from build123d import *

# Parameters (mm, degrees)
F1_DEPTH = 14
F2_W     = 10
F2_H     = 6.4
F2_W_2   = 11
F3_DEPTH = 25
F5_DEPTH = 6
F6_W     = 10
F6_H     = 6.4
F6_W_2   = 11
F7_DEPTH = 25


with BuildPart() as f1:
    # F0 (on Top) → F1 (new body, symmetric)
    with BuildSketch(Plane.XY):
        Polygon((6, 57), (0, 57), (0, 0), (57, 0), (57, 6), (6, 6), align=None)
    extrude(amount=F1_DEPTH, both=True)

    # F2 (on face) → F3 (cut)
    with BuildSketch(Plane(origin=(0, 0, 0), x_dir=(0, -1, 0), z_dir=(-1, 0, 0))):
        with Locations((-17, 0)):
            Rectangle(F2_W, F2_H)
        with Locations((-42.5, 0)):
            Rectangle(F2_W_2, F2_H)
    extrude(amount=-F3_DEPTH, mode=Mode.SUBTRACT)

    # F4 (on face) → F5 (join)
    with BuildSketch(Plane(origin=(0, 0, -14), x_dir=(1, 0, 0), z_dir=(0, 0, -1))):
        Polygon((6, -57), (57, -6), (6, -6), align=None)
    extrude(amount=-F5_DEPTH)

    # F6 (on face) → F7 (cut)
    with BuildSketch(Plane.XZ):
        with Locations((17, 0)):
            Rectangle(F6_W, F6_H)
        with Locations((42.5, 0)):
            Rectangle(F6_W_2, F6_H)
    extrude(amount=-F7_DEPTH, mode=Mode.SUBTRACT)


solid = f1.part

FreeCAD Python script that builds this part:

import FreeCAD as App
import Part
import Sketcher
Q = App.Units.Quantity


def add_polygon(sketch, points):
    """Adds a closed chain of lines whose ends are joined by coincident constraints."""
    first, n = sketch.GeometryCount, len(points)
    for a, b in zip(points, points[1:] + points[:1]):
        sketch.addGeometry(Part.LineSegment(App.Vector(*a, 0), App.Vector(*b, 0)), False)
    for i in range(n):
        sketch.addConstraint(Sketcher.Constraint("Coincident", first + i, 2, first + (i + 1) % n, 1))

doc = App.newDocument("Part")
body = doc.addObject("PartDesign::Body", "Body")

# Sketch on XY plane
sketch1 = doc.addObject("Sketcher::SketchObject", "Sketch")
body.addObject(sketch1)
sketch1.AttachmentSupport = (doc.XY_Plane, [""])
sketch1.MapMode = "FlatFace"
add_polygon(sketch1, [(6, 57), (0, 57), (0, 0), (57, 0), (57, 6), (6, 6)])  # lines 0-5
sketch1.addConstraint(Sketcher.Constraint("Horizontal", 0))
sketch1.addConstraint(Sketcher.Constraint("Vertical", 1))
sketch1.addConstraint(Sketcher.Constraint("Horizontal", 2))
sketch1.addConstraint(Sketcher.Constraint("Vertical", 3))
sketch1.addConstraint(Sketcher.Constraint("Horizontal", 4))
sketch1.addConstraint(Sketcher.Constraint("Vertical", 5))
sketch1.addConstraint(Sketcher.Constraint("Coincident", 1, 2, -1, 1))
sketch1.addConstraint(Sketcher.Constraint("Equal", 2, 1))
sketch1.addConstraint(Sketcher.Constraint("Equal", 0, 3))
sketch1.addConstraint(Sketcher.Constraint("DistanceX", 0, 2, 0, 1, Q("6 mm")))
sketch1.addConstraint(Sketcher.Constraint("DistanceX", 2, 1, 2, 2, Q("57 mm")))
pad1 = doc.addObject("PartDesign::Pad", "Pad")
body.addObject(pad1)
pad1.Profile = sketch1
pad1.Length = 28
pad1.Midplane = True

# Sketch on YZ plane
sketch2 = doc.addObject("Sketcher::SketchObject", "Sketch001")
body.addObject(sketch2)
sketch2.AttachmentSupport = (doc.YZ_Plane, [""])
sketch2.MapMode = "FlatFace"
add_polygon(sketch2, [(22, 3), (22, -3), (12, -3), (12, 3)])  # lines 0-3
add_polygon(sketch2, [(48, 3), (48, -3), (37, -3), (37, 3)])  # lines 4-7
sketch2.addConstraint(Sketcher.Constraint("Vertical", 0))
sketch2.addConstraint(Sketcher.Constraint("Horizontal", 1))
sketch2.addConstraint(Sketcher.Constraint("Vertical", 2))
sketch2.addConstraint(Sketcher.Constraint("Horizontal", 3))
sketch2.addConstraint(Sketcher.Constraint("Vertical", 4))
sketch2.addConstraint(Sketcher.Constraint("Horizontal", 5))
sketch2.addConstraint(Sketcher.Constraint("Vertical", 6))
sketch2.addConstraint(Sketcher.Constraint("Horizontal", 7))
sketch2.addConstraint(Sketcher.Constraint("Horizontal", 1, 2, 4, 2))
sketch2.addConstraint(Sketcher.Constraint("Horizontal", 3, 2, 6, 2))
sketch2.addConstraint(Sketcher.Constraint("DistanceX", 1, 2, 1, 1, Q("10 mm")))
sketch2.addConstraint(Sketcher.Constraint("DistanceX", 5, 2, 5, 1, Q("11 mm")))
sketch2.addConstraint(Sketcher.Constraint("DistanceY", 0, 2, 0, 1, Q("6.4 mm")))
sketch2.addConstraint(Sketcher.Constraint("DistanceX", -1, 1, 0, 2, Q("22 mm")))
sketch2.addConstraint(Sketcher.Constraint("DistanceX", -1, 1, 4, 2, Q("48 mm")))
sketch2.addConstraint(Sketcher.Constraint("DistanceY", 0, 2, -1, 1, Q("3.2 mm")))
pocket1 = doc.addObject("PartDesign::Pocket", "Pocket")
body.addObject(pocket1)
pocket1.Profile = sketch2
pocket1.Length = 25
pocket1.Reversed = True

# Sketch on XY plane
sketch3 = doc.addObject("Sketcher::SketchObject", "Sketch002")
body.addObject(sketch3)
sketch3.AttachmentSupport = (doc.XY_Plane, [""])
sketch3.MapMode = "FlatFace"
sketch3.AttachmentOffset = App.Placement(App.Vector(0, 0, -14), App.Rotation())
add_polygon(sketch3, [(6, 57), (57, 6), (6, 6)])  # lines 0-2
sketch3.addConstraint(Sketcher.Constraint("Horizontal", 1))
sketch3.addConstraint(Sketcher.Constraint("Vertical", 2))
sketch3.addConstraint(Sketcher.Constraint("Equal", 1, 2))
sketch3.addConstraint(Sketcher.Constraint("DistanceX", 1, 2, 1, 1, Q("51 mm")))
sketch3.addConstraint(Sketcher.Constraint("DistanceX", -1, 1, 0, 2, Q("57 mm")))
sketch3.addConstraint(Sketcher.Constraint("DistanceY", -1, 1, 0, 2, Q("6 mm")))
pad2 = doc.addObject("PartDesign::Pad", "Pad001")
body.addObject(pad2)
pad2.Profile = sketch3
pad2.Length = 6

# Sketch on XZ plane
sketch4 = doc.addObject("Sketcher::SketchObject", "Sketch003")
body.addObject(sketch4)
sketch4.AttachmentSupport = (doc.XZ_Plane, [""])
sketch4.MapMode = "FlatFace"
add_polygon(sketch4, [(12, 3), (12, -3), (22, -3), (22, 3)])  # lines 0-3
add_polygon(sketch4, [(37, 3), (37, -3), (48, -3), (48, 3)])  # lines 4-7
sketch4.addConstraint(Sketcher.Constraint("Vertical", 0))
sketch4.addConstraint(Sketcher.Constraint("Horizontal", 1))
sketch4.addConstraint(Sketcher.Constraint("Vertical", 2))
sketch4.addConstraint(Sketcher.Constraint("Horizontal", 3))
sketch4.addConstraint(Sketcher.Constraint("Vertical", 4))
sketch4.addConstraint(Sketcher.Constraint("Horizontal", 5))
sketch4.addConstraint(Sketcher.Constraint("Vertical", 6))
sketch4.addConstraint(Sketcher.Constraint("Horizontal", 7))
sketch4.addConstraint(Sketcher.Constraint("Horizontal", 1, 2, 4, 2))
sketch4.addConstraint(Sketcher.Constraint("Horizontal", 3, 2, 6, 2))
sketch4.addConstraint(Sketcher.Constraint("DistanceX", 1, 1, 1, 2, Q("10 mm")))
sketch4.addConstraint(Sketcher.Constraint("DistanceX", 5, 1, 5, 2, Q("11 mm")))
sketch4.addConstraint(Sketcher.Constraint("DistanceY", 0, 2, 0, 1, Q("6.4 mm")))
sketch4.addConstraint(Sketcher.Constraint("DistanceX", -1, 1, 0, 2, Q("12 mm")))
sketch4.addConstraint(Sketcher.Constraint("DistanceX", -1, 1, 4, 2, Q("37 mm")))
sketch4.addConstraint(Sketcher.Constraint("DistanceY", 0, 2, -1, 1, Q("3.2 mm")))
pocket2 = doc.addObject("PartDesign::Pocket", "Pocket001")
body.addObject(pocket2)
pocket2.Profile = sketch4
pocket2.Length = 25

doc.recompute()
